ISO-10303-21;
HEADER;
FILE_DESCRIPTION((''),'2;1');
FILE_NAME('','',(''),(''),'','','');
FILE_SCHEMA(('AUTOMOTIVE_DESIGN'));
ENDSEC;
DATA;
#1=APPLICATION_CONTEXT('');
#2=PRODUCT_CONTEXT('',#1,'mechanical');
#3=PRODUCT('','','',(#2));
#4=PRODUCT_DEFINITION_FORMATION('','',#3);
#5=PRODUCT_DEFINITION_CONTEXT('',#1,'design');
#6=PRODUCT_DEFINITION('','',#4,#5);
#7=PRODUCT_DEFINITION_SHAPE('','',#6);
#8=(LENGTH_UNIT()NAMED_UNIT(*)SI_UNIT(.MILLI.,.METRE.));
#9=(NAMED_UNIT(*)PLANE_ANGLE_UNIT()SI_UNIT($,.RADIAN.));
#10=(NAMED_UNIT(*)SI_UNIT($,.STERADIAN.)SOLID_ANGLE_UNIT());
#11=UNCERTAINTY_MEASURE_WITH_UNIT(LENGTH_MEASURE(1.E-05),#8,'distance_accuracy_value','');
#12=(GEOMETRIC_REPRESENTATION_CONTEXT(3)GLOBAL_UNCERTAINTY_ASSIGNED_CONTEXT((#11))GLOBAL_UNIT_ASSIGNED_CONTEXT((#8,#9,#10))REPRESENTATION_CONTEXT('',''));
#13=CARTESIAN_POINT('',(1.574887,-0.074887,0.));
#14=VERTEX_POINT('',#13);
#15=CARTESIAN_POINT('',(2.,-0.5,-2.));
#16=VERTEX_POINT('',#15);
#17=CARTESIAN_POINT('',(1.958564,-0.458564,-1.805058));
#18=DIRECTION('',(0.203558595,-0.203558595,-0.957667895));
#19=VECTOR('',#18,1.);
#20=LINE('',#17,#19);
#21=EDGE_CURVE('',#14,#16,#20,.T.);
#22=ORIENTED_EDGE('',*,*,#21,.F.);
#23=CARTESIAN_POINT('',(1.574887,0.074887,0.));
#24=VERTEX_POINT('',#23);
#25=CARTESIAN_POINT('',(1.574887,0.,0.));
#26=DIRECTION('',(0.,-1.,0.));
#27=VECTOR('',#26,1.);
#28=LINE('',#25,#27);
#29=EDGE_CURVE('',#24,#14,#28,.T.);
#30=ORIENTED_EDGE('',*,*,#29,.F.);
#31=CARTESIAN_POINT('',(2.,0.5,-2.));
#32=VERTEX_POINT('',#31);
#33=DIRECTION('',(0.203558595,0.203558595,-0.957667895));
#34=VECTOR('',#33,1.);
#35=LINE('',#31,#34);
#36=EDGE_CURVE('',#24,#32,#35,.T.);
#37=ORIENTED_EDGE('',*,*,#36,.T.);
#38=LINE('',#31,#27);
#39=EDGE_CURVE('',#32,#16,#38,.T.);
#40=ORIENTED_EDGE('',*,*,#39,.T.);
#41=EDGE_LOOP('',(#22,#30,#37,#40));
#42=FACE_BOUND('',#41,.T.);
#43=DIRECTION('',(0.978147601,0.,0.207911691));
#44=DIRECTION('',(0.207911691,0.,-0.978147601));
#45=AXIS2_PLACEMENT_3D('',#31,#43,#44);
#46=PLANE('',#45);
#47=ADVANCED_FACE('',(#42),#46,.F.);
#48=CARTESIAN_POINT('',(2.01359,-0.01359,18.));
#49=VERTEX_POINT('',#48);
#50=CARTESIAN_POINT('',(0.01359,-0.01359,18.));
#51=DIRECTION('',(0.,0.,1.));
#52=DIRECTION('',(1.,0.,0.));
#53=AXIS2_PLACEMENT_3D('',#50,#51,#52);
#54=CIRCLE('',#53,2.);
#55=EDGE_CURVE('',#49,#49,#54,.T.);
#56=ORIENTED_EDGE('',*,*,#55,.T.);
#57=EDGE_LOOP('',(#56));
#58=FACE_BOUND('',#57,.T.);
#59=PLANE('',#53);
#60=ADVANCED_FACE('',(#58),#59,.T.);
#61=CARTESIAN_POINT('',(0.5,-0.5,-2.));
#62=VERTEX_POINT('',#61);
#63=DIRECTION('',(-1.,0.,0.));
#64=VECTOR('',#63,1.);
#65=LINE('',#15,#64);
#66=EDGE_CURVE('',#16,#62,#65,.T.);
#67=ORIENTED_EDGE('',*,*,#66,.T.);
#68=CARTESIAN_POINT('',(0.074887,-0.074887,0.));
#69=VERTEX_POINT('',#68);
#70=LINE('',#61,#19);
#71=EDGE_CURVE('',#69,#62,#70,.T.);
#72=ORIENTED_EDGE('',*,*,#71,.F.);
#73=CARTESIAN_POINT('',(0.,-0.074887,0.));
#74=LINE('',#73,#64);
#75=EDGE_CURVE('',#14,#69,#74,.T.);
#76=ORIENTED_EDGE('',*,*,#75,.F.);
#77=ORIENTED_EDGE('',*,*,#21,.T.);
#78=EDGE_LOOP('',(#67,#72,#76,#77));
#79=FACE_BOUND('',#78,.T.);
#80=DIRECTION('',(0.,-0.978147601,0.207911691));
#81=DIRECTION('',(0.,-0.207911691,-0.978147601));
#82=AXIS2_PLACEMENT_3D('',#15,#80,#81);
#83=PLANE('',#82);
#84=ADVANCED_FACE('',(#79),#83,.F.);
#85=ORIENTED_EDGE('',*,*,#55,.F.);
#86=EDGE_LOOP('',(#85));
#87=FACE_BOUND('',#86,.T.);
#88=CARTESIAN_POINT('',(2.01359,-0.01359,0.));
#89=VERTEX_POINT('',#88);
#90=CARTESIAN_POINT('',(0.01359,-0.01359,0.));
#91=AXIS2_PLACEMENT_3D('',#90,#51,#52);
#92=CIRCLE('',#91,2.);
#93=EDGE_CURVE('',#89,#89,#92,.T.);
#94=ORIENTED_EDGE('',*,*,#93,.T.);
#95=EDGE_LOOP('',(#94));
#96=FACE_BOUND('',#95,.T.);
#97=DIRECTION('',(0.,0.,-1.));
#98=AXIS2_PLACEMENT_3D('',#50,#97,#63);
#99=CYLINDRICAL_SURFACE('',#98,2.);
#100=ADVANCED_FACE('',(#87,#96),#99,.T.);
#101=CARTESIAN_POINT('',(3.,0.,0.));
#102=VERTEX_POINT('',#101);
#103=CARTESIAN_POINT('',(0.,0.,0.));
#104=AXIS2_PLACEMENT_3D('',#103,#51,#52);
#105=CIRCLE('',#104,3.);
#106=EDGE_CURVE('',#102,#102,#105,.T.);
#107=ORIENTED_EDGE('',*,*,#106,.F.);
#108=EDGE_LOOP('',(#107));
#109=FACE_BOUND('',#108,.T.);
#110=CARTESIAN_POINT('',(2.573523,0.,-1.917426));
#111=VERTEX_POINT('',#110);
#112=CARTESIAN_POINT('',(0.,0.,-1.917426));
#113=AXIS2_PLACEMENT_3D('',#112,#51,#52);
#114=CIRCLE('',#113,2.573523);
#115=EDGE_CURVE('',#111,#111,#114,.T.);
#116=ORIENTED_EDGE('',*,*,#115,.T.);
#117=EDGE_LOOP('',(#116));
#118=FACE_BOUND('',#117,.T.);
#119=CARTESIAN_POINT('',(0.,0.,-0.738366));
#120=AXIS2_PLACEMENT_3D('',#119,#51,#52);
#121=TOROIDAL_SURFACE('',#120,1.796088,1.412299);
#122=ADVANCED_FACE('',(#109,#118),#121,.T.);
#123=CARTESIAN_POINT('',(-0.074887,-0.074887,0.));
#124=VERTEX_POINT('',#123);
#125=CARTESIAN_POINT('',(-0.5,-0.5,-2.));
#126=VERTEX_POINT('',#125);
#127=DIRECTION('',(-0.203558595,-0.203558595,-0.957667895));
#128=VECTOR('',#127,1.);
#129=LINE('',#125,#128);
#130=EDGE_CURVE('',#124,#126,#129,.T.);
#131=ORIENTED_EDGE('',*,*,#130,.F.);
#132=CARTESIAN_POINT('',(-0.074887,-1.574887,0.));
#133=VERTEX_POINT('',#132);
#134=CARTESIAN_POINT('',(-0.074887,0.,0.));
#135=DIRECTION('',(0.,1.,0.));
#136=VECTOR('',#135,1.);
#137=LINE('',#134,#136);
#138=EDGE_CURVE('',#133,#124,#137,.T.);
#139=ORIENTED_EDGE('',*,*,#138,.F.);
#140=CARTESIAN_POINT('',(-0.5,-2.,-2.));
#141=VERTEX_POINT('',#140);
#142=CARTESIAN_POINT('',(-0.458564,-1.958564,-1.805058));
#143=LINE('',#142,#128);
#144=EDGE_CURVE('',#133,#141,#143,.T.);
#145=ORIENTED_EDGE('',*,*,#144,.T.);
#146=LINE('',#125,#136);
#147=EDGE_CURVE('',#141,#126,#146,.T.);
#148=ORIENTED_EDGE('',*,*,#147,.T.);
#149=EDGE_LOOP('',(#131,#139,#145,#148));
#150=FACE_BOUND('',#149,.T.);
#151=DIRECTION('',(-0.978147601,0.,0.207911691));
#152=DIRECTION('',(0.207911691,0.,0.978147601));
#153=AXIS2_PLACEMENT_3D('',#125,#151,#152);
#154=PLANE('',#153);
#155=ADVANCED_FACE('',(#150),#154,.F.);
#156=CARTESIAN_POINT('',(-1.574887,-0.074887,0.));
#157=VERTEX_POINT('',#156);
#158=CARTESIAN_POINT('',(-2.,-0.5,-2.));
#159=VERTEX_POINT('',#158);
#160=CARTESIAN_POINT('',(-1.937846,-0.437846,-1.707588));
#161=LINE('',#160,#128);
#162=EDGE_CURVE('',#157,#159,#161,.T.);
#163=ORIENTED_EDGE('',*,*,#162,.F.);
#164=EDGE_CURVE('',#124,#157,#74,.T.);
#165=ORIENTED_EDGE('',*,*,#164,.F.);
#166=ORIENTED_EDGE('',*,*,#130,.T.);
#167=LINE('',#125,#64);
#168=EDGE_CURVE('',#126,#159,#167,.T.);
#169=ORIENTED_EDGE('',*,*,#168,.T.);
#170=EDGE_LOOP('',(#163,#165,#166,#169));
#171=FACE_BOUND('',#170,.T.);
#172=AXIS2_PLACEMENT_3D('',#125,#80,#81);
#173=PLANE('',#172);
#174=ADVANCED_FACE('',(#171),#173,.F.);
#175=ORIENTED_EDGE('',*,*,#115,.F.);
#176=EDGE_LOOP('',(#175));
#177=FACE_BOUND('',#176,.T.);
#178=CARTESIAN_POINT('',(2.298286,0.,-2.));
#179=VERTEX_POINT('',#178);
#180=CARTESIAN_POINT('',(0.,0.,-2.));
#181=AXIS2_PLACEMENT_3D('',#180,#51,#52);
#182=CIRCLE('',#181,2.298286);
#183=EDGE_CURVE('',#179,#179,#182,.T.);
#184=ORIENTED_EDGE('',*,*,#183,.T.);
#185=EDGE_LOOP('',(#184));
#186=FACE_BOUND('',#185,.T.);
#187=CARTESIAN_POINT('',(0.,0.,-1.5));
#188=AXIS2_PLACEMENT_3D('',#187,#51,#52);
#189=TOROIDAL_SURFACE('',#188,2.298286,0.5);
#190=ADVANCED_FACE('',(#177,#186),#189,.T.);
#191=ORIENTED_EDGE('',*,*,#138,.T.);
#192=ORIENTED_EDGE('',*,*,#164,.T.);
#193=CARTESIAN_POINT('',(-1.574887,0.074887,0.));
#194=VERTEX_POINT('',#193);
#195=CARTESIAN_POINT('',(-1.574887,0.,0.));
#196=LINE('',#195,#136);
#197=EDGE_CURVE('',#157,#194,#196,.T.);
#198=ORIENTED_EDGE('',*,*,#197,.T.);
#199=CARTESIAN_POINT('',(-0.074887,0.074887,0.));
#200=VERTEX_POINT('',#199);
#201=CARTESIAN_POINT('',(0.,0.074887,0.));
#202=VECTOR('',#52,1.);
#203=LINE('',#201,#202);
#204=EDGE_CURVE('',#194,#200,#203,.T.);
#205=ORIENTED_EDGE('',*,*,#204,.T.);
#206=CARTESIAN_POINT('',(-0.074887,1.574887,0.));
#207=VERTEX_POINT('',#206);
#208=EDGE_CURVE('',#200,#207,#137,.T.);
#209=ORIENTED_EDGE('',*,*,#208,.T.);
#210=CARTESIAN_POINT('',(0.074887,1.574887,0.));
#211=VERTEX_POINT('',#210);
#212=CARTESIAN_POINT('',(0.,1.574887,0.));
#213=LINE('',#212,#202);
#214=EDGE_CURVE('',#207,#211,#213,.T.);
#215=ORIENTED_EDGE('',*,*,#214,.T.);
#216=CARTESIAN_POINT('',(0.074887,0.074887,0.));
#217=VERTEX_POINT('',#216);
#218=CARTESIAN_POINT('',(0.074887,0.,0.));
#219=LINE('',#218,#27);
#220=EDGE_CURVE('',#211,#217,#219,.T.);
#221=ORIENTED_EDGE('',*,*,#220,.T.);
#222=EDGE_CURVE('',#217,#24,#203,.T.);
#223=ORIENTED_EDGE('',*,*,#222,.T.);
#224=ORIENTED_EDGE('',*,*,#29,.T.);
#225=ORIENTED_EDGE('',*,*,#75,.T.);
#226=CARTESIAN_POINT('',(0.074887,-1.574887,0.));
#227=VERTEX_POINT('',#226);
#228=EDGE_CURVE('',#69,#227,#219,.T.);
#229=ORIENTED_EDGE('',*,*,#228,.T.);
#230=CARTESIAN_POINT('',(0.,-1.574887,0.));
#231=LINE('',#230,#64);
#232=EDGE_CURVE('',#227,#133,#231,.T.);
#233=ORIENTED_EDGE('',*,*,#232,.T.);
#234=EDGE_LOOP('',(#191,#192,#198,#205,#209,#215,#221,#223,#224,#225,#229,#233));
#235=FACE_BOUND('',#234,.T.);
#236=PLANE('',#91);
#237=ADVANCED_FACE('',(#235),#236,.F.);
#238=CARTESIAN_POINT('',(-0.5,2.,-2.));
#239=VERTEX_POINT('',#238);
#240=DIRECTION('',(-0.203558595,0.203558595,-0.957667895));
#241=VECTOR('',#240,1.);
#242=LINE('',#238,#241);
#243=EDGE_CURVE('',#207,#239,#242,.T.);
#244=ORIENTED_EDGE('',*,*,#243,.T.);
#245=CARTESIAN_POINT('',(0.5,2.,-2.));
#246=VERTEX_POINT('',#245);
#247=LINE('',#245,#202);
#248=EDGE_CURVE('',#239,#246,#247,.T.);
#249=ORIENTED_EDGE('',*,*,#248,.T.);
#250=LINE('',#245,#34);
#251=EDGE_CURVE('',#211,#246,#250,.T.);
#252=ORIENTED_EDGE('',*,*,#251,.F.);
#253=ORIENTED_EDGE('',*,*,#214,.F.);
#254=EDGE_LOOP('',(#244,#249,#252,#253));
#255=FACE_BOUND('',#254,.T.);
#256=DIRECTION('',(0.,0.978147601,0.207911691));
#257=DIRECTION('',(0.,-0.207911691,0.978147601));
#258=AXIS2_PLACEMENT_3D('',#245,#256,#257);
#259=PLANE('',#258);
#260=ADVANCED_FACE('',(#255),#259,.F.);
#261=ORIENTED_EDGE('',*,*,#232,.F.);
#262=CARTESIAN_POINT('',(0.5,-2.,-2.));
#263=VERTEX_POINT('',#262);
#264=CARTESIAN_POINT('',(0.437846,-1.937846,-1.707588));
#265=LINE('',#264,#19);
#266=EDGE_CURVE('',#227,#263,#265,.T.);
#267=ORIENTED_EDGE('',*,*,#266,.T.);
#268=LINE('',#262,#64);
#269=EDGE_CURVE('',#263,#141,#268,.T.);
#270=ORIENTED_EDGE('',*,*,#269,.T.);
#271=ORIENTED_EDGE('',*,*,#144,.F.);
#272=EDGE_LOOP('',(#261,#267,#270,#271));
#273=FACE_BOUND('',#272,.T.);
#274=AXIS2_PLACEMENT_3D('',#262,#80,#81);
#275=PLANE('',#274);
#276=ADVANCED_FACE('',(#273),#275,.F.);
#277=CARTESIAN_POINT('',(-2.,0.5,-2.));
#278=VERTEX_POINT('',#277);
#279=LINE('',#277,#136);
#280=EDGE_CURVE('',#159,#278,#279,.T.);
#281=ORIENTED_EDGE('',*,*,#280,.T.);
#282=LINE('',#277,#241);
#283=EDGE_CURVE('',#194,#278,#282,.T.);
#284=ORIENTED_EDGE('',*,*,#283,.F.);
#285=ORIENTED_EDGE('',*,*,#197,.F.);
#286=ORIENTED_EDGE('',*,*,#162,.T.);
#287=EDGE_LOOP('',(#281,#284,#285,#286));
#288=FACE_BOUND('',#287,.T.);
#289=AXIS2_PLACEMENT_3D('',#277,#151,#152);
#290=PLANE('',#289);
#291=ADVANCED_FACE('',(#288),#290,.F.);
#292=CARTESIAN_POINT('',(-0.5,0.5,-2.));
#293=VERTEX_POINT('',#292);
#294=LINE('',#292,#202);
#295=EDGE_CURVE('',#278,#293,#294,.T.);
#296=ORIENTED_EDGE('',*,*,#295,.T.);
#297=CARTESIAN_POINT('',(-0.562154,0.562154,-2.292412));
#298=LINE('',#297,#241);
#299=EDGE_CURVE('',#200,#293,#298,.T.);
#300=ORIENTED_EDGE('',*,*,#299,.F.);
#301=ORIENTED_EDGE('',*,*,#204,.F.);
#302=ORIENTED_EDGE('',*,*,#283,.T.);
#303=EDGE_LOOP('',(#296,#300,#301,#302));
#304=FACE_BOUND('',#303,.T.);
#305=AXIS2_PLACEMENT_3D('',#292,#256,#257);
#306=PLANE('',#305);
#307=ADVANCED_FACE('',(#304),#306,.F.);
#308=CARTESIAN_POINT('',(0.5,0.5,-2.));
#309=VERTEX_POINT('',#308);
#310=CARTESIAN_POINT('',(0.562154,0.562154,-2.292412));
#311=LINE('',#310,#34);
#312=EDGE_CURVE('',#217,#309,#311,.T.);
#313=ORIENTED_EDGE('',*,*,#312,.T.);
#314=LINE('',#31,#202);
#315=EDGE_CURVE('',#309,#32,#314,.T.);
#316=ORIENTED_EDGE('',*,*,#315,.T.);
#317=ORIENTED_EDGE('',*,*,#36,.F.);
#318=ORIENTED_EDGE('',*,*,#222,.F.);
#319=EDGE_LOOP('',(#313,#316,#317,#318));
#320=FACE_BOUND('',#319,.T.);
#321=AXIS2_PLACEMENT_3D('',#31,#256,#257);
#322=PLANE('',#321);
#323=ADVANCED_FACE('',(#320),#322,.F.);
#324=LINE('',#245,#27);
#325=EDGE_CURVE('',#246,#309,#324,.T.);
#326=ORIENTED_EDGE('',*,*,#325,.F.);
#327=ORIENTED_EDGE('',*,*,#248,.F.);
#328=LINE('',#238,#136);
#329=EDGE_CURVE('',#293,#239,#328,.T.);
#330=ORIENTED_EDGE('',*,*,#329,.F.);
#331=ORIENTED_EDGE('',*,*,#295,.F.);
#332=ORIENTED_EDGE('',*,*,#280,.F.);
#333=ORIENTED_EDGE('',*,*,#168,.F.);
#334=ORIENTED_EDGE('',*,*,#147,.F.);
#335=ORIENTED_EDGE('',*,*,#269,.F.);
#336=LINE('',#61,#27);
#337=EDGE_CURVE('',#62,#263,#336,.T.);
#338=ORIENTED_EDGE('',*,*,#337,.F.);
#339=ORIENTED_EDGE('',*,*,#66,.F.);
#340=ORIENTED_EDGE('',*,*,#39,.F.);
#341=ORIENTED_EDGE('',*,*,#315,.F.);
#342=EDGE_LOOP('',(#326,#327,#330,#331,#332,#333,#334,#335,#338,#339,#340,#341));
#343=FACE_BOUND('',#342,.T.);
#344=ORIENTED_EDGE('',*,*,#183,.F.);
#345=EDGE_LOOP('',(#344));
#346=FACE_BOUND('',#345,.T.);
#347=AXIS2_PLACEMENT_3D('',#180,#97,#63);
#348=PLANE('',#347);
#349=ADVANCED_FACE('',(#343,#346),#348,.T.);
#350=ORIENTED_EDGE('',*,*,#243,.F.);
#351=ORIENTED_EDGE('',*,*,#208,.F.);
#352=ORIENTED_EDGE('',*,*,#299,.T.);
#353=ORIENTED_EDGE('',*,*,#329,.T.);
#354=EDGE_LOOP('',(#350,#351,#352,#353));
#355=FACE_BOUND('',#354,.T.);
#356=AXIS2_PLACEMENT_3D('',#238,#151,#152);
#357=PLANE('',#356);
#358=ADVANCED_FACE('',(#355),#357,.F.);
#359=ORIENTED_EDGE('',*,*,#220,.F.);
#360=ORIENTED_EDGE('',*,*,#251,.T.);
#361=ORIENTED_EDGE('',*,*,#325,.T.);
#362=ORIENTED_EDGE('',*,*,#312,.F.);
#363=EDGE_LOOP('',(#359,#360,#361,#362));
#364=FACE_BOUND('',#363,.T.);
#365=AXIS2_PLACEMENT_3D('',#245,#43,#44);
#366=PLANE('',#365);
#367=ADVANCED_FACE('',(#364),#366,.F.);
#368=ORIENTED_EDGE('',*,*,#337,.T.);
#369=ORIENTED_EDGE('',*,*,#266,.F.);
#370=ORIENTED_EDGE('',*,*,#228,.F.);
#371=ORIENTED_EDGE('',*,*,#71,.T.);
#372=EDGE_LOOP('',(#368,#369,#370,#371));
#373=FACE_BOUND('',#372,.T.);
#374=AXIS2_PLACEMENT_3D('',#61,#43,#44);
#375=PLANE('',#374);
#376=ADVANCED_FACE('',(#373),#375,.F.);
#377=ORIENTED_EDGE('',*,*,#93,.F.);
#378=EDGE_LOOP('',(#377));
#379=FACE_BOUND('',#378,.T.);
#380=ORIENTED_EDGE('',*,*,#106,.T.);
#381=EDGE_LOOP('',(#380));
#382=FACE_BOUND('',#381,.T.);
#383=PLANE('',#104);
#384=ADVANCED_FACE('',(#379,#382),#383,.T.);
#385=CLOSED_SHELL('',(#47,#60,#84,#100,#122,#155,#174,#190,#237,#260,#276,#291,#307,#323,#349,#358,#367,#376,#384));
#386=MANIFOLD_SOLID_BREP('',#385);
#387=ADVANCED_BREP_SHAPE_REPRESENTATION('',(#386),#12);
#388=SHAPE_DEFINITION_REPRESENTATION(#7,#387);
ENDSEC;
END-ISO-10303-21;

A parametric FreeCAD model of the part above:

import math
import FreeCAD as App
import Part
import Sketcher

V = App.Vector
Q = App.Units.Quantity


def faces_at(feature, points):
    """Names of the faces that lie closest to the given points."""
    faces = feature.Shape.Faces
    near = lambda p: min(range(len(faces)), key=lambda i: faces[i].distToShape(Part.Vertex(*p))[0])
    return sorted({f"Face{near(p) + 1}" for p in points})

doc = App.newDocument("Part")
body = doc.addObject("PartDesign::Body", "Body")

sketch1 = doc.addObject("Sketcher::SketchObject", "Sketch")
body.addObject(sketch1)
sketch1.AttachmentSupport = (doc.XZ_Plane, [""])
sketch1.MapMode = "FlatFace"
sketch1.addGeometry([
    Part.LineSegment(V(0, -2, 0), V(0, 0, 0)),
    Part.LineSegment(V(0, 0, 0), V(3, 0, 0)),
    Part.ArcOfCircle(Part.Circle(V(1.8, -0.74, 0), V(0, 0, 1), 1.41), math.radians(-57), math.radians(32)),
    Part.ArcOfCircle(Part.Circle(V(2.3, -1.5, 0), V(0, 0, 1), 0.5), math.radians(-90), math.radians(-57)),
    Part.LineSegment(V(2.3, -2, 0), V(0, -2, 0)),
], False)
sketch1.addConstraint([
    Sketcher.Constraint("Coincident", 0, 2, 1, 1),
    Sketcher.Constraint("Coincident", 1, 2, 2, 2),
    Sketcher.Constraint("Tangent", 2, 1, 3, 2),
    Sketcher.Constraint("Tangent", 3, 1, 4, 1),
    Sketcher.Constraint("Coincident", 4, 2, 0, 1),
    Sketcher.Constraint("Vertical", 0),
    Sketcher.Constraint("Horizontal", 1),
    Sketcher.Constraint("Horizontal", 4),
    Sketcher.Constraint("Coincident", 0, 2, -1, 1),
    Sketcher.Constraint("Radius", 3, Q("0.5 mm")),
    Sketcher.Constraint("DistanceX", 1, 1, 1, 2, Q("3 mm")),
    Sketcher.Constraint("DistanceY", 0, 1, 0, 2, Q("2 mm")),
    Sketcher.Constraint("Radius", 2, Q("1.412299 mm")),
    Sketcher.Constraint("DistanceX", 4, 2, 4, 1, Q("2.298286 mm")),
])
revolution = doc.addObject("PartDesign::Revolution", "Revolution")
body.addObject(revolution)
revolution.Profile = sketch1
revolution.ReferenceAxis = (sketch1, ["V_Axis"])
revolution.Angle = 360
body2 = doc.addObject("PartDesign::Body", "Body001")

sketch2 = doc.addObject("Sketcher::SketchObject", "Sketch001")
body2.addObject(sketch2)
sketch2.AttachmentSupport = (doc.getObject("XY_Plane001"), [""])
sketch2.MapMode = "FlatFace"
sketch2.AttachmentOffset = App.Placement(V(0, 0, -2), App.Rotation())
sketch2.addGeometry([
    Part.LineSegment(V(-0.5, -0.5, 0), V(-2, -0.5, 0)),
    Part.LineSegment(V(-2, -0.5, 0), V(-2, 0.5, 0)),
    Part.LineSegment(V(-2, 0.5, 0), V(-0.5, 0.5, 0)),
    Part.LineSegment(V(-0.5, 0.5, 0), V(-0.5, 2, 0)),
    Part.LineSegment(V(-0.5, 2, 0), V(0.5, 2, 0)),
    Part.LineSegment(V(0.5, 2, 0), V(0.5, 0.5, 0)),
    Part.LineSegment(V(0.5, 0.5, 0), V(2, 0.5, 0)),
    Part.LineSegment(V(2, 0.5, 0), V(2, -0.5, 0)),
    Part.LineSegment(V(2, -0.5, 0), V(0.5, -0.5, 0)),
    Part.LineSegment(V(0.5, -0.5, 0), V(0.5, -2, 0)),
    Part.LineSegment(V(0.5, -2, 0), V(-0.5, -2, 0)),
    Part.LineSegment(V(-0.5, -2, 0), V(-0.5, -0.5, 0)),
], False)
sketch2.addConstraint([
    Sketcher.Constraint("Coincident", 0, 2, 1, 1),
    Sketcher.Constraint("Coincident", 1, 2, 2, 1),
    Sketcher.Constraint("Coincident", 2, 2, 3, 1),
    Sketcher.Constraint("Coincident", 3, 2, 4, 1),
    Sketcher.Constraint("Coincident", 4, 2, 5, 1),
    Sketcher.Constraint("Coincident", 5, 2, 6, 1),
    Sketcher.Constraint("Coincident", 6, 2, 7, 1),
    Sketcher.Constraint("Coincident", 7, 2, 8, 1),
    Sketcher.Constraint("Coincident", 8, 2, 9, 1),
    Sketcher.Constraint("Coincident", 9, 2, 10, 1),
    Sketcher.Constraint("Coincident", 10, 2, 11, 1),
    Sketcher.Constraint("Coincident", 11, 2, 0, 1),
    Sketcher.Constraint("Horizontal", 0),
    Sketcher.Constraint("Vertical", 1),
    Sketcher.Constraint("Horizontal", 2),
    Sketcher.Constraint("Vertical", 3),
    Sketcher.Constraint("Horizontal", 4),
    Sketcher.Constraint("Vertical", 5),
    Sketcher.Constraint("Horizontal", 6),
    Sketcher.Constraint("Vertical", 7),
    Sketcher.Constraint("Horizontal", 8),
    Sketcher.Constraint("Vertical", 9),
    Sketcher.Constraint("Horizontal", 10),
    Sketcher.Constraint("Vertical", 11),
    Sketcher.Constraint("Symmetric", 0, 2, 6, 2, -1, 1),
    Sketcher.Constraint("Symmetric", 2, 2, 8, 2, -1, 1),
    Sketcher.Constraint("Symmetric", 4, 2, 10, 2, -1, 1),
    Sketcher.Constraint("Symmetric", 2, 2, 5, 2, -2),
    Sketcher.Constraint("Equal", 10, 1),
    Sketcher.Constraint("Equal", 8, 3),
    Sketcher.Constraint("DistanceX", 4, 1, 4, 2, Q("1 mm")),
    Sketcher.Constraint("DistanceX", 0, 2, 0, 1, Q("1.5 mm")),
])
pad1 = doc.addObject("PartDesign::Pad", "Pad")
body2.addObject(pad1)
pad1.Profile = sketch2
pad1.Length = 2
doc.recompute()

datumplane = doc.addObject("PartDesign::Plane", "DatumPlane")
body2.addObject(datumplane)
datumplane.AttachmentSupport = (doc.getObject("XY_Plane001"), [""])
datumplane.MapMode = "FlatFace"
datumplane.AttachmentOffset = App.Placement(V(0, 0, -2), App.Rotation())
draft = doc.addObject("PartDesign::Draft", "Draft")
body2.addObject(draft)
draft.Base = (pad1, faces_at(pad1, [
    (-1.25, -0.5, -1),
    (-2, 0, -1),
    (-1.25, 0.5, -1),
    (-0.5, 1.25, -1),
    (0, 2, -1),
    (0.5, 1.25, -1),
    (1.25, 0.5, -1),
    (2, 0, -1),
    (1.25, -0.5, -1),
    (0.5, -1.25, -1),
    (0, -2, -1),
    (-0.5, -1.25, -1),
]))
draft.NeutralPlane = (datumplane, [""])
draft.Angle = 12
draft.Reversed = False
doc.recompute()

boolean = doc.addObject("PartDesign::Boolean", "Boolean")
body.addObject(boolean)
boolean.Type = "Cut"
boolean.addObjects([body2])

sketch3 = doc.addObject("Sketcher::SketchObject", "Sketch002")
body.addObject(sketch3)
sketch3.AttachmentSupport = (doc.XY_Plane, [""])
sketch3.MapMode = "FlatFace"
sketch3.addGeometry(Part.Circle(V(0, 0, 0), V(0, 0, 1), 2), False)
sketch3.addConstraint([
    Sketcher.Constraint("Diameter", 0, Q("4 mm")),
    Sketcher.Constraint("DistanceX", -1, 1, 0, 3, Q("0.01359 mm")),
    Sketcher.Constraint("DistanceY", 0, 3, -1, 1, Q("0.01359 mm")),
])
pad2 = doc.addObject("PartDesign::Pad", "Pad001")
body.addObject(pad2)
pad2.Profile = sketch3
pad2.Length = 18

doc.recompute()
